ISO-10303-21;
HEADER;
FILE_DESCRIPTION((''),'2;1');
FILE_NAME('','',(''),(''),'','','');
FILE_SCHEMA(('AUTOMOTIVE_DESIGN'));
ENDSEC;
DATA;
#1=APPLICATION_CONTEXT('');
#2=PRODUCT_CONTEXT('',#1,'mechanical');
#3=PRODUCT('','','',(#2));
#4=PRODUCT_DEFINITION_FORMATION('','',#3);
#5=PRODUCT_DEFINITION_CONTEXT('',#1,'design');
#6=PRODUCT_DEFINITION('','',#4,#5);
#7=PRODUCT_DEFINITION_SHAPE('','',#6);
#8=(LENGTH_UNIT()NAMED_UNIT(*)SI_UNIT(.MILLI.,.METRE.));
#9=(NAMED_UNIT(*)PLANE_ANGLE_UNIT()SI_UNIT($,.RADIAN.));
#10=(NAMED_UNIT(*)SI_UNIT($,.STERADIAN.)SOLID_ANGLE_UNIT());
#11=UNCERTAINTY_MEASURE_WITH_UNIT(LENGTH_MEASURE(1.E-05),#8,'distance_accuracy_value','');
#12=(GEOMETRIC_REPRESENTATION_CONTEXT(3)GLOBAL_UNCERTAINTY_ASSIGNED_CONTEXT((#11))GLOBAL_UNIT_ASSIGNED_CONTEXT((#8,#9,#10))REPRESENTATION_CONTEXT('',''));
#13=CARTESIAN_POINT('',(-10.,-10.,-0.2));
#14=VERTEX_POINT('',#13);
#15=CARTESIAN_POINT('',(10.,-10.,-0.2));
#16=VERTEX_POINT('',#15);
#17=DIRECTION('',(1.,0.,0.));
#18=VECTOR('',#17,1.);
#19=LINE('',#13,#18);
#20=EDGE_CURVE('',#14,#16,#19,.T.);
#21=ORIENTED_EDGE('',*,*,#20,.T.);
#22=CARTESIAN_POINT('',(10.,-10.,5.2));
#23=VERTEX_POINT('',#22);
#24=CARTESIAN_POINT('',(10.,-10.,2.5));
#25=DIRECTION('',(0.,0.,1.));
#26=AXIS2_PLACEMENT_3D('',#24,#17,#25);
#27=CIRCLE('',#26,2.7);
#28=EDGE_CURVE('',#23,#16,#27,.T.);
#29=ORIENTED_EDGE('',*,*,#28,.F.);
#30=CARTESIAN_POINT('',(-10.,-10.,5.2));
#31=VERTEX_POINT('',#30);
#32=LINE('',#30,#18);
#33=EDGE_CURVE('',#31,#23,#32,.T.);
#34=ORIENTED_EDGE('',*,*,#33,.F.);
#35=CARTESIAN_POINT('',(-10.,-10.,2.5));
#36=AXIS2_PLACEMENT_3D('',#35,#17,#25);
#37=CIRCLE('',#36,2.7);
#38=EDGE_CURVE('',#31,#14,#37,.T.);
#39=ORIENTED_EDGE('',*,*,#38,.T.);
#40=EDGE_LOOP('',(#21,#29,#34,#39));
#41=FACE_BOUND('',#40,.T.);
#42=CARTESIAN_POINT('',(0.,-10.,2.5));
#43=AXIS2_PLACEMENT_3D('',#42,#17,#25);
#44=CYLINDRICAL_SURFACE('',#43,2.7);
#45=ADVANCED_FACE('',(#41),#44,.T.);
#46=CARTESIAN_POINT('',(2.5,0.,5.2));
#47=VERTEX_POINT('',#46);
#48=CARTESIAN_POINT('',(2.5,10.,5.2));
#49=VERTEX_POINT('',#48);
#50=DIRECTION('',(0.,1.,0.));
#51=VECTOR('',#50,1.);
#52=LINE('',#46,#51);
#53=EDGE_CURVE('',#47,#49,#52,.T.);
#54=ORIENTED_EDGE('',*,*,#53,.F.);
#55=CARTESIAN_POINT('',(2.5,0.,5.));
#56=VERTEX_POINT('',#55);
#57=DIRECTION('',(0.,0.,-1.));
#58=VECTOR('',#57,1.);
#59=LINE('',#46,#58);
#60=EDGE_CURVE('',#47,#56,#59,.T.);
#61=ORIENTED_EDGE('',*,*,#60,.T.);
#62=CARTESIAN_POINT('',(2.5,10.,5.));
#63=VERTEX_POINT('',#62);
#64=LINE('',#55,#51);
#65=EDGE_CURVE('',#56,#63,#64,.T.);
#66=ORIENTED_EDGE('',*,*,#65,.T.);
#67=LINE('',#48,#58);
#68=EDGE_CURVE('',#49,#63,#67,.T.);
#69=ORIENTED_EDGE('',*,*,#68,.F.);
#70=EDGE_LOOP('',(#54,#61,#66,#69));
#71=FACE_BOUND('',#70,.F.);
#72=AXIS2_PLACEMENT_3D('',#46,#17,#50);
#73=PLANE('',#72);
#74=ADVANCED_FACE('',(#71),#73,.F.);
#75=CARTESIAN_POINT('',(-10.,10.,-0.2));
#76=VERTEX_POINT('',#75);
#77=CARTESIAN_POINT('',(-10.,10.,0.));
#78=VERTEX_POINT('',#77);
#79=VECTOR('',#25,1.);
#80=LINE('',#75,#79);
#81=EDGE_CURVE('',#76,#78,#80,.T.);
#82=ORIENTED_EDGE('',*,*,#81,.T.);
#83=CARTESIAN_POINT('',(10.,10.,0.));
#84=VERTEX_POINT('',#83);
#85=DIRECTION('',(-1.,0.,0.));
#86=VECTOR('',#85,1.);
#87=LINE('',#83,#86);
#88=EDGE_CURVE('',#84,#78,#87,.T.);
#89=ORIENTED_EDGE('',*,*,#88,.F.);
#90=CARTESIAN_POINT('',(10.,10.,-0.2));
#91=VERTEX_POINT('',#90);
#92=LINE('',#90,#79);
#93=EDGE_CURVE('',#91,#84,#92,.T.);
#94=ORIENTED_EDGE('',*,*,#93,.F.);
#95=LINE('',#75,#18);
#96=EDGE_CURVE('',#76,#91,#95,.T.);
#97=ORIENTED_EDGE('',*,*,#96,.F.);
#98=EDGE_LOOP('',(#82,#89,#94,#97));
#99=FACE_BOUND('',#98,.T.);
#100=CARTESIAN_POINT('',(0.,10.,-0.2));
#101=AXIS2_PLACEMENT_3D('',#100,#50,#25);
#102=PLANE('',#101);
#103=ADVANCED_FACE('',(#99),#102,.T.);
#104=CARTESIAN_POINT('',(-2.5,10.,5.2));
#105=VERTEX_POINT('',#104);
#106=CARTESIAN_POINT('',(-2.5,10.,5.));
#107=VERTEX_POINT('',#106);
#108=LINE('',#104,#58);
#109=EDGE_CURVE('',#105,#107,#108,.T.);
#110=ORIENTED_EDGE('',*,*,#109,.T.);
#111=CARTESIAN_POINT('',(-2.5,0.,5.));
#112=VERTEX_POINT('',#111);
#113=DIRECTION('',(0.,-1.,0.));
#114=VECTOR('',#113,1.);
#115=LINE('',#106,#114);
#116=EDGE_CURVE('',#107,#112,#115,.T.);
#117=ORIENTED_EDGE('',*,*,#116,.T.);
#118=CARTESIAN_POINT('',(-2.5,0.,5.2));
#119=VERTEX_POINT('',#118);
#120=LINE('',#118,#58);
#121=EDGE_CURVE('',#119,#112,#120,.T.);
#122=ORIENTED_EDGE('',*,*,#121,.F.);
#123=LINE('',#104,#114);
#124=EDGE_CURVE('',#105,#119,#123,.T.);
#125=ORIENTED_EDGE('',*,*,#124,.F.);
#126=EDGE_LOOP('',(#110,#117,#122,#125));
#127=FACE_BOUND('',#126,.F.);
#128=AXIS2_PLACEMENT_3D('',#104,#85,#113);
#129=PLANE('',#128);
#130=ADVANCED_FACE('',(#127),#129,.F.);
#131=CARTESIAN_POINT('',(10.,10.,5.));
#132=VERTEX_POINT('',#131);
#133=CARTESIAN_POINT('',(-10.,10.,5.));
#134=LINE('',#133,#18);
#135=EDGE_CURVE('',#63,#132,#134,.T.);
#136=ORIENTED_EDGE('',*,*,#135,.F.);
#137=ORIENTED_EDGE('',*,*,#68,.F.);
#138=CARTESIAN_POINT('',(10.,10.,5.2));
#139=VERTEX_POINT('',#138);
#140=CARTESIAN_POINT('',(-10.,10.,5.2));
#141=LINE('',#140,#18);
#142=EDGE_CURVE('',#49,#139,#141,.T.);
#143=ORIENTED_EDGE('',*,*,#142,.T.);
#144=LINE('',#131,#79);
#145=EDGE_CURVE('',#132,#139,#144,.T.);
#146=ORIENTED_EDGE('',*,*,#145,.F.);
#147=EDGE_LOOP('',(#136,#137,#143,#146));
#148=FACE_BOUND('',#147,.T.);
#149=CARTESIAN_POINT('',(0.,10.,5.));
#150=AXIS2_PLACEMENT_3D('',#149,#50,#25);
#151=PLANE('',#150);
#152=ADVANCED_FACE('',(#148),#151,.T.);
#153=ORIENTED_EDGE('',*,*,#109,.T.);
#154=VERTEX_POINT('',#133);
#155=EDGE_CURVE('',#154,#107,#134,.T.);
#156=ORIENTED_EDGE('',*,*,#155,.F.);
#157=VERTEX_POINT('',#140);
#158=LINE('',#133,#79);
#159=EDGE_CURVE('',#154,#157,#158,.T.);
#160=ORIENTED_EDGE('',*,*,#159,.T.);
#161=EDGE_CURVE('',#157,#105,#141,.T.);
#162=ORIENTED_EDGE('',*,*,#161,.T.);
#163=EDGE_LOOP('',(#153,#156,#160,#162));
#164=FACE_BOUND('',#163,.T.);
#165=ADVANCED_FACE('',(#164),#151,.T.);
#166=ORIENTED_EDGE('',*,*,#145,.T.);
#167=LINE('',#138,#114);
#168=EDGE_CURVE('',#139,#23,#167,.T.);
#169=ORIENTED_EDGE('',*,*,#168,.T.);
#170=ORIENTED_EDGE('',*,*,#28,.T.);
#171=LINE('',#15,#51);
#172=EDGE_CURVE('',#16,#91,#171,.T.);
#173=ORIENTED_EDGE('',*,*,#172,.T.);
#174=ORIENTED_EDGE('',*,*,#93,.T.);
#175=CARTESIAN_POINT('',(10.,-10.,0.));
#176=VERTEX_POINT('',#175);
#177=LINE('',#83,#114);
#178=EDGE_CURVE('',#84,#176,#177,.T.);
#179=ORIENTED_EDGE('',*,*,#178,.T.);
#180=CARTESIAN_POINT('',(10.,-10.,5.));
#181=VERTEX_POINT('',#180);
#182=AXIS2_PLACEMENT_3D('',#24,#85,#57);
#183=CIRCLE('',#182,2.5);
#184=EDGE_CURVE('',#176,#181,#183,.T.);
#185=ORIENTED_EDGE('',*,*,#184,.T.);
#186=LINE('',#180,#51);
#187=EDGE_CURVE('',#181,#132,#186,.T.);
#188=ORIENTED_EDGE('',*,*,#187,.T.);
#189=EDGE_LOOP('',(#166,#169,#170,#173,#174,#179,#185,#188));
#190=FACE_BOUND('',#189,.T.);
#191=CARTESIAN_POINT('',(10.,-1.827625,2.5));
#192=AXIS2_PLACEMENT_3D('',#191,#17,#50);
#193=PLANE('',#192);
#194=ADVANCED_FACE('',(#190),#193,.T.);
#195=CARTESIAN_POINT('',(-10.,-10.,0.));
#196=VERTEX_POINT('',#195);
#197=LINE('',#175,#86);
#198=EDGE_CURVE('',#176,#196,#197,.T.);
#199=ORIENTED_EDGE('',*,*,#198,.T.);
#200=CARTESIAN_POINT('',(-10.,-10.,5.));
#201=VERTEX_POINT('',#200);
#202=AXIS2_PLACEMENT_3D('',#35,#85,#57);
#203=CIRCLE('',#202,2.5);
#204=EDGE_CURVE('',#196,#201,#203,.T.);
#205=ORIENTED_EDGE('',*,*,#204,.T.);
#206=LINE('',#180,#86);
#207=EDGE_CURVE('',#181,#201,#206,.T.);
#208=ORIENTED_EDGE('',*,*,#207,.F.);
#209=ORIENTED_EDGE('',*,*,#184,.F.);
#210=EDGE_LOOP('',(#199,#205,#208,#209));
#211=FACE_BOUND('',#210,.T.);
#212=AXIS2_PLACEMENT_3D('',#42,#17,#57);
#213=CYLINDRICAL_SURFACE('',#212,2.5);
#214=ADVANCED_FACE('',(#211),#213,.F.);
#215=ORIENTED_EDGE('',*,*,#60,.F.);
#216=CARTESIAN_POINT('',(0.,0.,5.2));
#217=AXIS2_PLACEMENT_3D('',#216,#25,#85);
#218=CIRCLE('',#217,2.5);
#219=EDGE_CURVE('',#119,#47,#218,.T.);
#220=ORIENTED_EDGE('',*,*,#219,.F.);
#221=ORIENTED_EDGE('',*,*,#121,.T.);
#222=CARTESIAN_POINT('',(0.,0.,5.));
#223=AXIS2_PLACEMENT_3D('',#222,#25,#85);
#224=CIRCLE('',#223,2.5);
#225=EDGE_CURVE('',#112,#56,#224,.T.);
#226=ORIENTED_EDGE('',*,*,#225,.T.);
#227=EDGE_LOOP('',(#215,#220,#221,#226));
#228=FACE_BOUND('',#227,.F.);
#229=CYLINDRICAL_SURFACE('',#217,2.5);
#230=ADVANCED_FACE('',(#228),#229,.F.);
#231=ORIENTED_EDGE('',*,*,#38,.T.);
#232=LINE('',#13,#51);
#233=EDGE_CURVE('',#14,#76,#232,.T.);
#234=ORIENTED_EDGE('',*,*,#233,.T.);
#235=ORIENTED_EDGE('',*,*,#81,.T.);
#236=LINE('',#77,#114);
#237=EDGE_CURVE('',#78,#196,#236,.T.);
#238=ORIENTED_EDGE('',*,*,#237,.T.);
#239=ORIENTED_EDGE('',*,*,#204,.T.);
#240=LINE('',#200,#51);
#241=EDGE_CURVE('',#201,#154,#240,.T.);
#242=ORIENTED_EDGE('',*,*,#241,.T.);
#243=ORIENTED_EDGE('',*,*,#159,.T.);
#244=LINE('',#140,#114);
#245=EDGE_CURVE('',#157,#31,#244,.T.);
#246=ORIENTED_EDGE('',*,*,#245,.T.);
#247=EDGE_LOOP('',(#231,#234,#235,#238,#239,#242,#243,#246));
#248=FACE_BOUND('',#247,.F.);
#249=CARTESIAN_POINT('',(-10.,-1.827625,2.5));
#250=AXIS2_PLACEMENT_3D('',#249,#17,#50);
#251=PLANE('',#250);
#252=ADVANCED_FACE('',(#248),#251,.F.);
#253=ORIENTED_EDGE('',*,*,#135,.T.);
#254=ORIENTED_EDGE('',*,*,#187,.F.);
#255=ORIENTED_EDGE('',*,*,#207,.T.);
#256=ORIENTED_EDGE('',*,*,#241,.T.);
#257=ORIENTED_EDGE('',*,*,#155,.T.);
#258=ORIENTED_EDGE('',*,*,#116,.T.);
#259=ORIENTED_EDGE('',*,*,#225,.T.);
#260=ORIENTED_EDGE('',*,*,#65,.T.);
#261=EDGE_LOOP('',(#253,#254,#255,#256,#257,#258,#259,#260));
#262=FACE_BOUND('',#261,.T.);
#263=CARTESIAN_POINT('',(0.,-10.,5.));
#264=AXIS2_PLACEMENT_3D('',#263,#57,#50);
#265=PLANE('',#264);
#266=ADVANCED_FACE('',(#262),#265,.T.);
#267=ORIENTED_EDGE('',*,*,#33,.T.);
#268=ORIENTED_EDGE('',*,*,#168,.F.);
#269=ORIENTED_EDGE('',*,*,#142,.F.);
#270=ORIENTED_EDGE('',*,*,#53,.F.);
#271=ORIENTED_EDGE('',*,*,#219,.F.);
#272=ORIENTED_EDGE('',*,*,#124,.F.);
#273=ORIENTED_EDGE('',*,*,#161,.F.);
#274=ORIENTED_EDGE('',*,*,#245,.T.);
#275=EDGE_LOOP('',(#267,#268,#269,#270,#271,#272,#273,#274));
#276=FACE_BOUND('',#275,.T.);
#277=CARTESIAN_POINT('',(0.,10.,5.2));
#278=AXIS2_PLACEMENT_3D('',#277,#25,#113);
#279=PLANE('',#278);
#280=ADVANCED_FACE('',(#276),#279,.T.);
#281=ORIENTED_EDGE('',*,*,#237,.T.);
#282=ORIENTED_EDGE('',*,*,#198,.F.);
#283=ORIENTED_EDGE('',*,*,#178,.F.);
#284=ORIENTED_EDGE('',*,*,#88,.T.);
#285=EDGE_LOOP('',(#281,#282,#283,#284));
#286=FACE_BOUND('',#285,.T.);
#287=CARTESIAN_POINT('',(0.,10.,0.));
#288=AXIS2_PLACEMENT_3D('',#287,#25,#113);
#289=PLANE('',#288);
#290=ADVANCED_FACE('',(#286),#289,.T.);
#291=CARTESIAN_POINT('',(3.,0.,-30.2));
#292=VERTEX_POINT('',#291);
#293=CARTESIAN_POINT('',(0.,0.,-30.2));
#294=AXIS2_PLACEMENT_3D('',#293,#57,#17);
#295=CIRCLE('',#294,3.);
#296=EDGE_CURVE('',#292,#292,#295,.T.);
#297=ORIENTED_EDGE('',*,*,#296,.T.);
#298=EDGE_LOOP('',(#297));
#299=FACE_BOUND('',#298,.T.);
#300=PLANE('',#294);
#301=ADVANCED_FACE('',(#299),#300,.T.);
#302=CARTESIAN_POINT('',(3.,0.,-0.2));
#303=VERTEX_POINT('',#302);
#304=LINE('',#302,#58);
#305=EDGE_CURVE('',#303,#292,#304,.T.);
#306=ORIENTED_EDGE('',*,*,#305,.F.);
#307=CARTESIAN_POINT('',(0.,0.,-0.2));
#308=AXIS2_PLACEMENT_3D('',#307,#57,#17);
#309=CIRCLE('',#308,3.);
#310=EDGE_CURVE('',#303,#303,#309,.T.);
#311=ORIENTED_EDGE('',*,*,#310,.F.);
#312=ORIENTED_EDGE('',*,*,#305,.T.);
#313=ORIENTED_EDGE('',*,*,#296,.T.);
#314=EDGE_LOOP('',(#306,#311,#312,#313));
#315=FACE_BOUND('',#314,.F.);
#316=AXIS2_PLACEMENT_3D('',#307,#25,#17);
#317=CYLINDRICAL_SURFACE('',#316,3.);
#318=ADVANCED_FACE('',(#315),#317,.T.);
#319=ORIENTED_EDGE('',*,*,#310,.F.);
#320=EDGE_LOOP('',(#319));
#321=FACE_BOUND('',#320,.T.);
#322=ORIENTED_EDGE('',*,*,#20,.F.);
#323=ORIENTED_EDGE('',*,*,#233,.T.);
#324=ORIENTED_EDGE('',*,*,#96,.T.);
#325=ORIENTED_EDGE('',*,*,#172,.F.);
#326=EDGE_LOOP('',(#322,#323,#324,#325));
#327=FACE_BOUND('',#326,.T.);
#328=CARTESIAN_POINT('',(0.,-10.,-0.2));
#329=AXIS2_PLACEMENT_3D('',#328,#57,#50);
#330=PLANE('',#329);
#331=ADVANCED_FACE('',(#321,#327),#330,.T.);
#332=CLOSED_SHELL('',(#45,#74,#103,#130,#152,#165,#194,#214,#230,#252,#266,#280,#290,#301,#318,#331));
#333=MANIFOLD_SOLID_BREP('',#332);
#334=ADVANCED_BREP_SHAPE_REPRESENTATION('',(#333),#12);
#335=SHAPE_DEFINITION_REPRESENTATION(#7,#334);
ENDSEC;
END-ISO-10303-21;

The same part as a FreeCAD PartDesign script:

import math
import FreeCAD as App
import Part
import Sketcher
Q = App.Units.Quantity

doc = App.newDocument("Part")
body = doc.addObject("PartDesign::Body", "Body")

# Sketch on YZ plane
sketch1 = body.newObject("Sketcher::SketchObject", "Sketch")
sketch1.AttachmentSupport = (doc.getObject("YZ_Plane"), [""])
sketch1.MapMode = "FlatFace"
sketch1.addGeometry([
    Part.LineSegment(App.Vector(-10, 5, 0), App.Vector(10, 5, 0)),  # 0
    Part.LineSegment(App.Vector(10, 5, 0), App.Vector(10, 5.2, 0)),  # 1
    Part.LineSegment(App.Vector(10, 5.2, 0), App.Vector(-10, 5.2, 0)),  # 2
    Part.ArcOfCircle(Part.Circle(App.Vector(-10, 2.5, 0), App.Vector(0, 0, 1), 2.7), math.radians(90), math.radians(270)),  # 3
    Part.LineSegment(App.Vector(-10, -0.2, 0), App.Vector(10, -0.2, 0)),  # 4
    Part.LineSegment(App.Vector(10, -0.2, 0), App.Vector(10, 0, 0)),  # 5
    Part.LineSegment(App.Vector(10, 0, 0), App.Vector(-10, 0, 0)),  # 6
    Part.ArcOfCircle(Part.Circle(App.Vector(-10, 2.5, 0), App.Vector(0, 0, 1), 2.5), math.radians(90), math.radians(270)),  # 7
], False)
sketch1.addConstraint([
    Sketcher.Constraint("Coincident", 0, 2, 1, 1),
    Sketcher.Constraint("Coincident", 1, 2, 2, 1),
    Sketcher.Constraint("Tangent", 2, 2, 3, 1),
    Sketcher.Constraint("Tangent", 3, 2, 4, 1),
    Sketcher.Constraint("Coincident", 4, 2, 5, 1),
    Sketcher.Constraint("Coincident", 5, 2, 6, 1),
    Sketcher.Constraint("Tangent", 6, 2, 7, 2),
    Sketcher.Constraint("Tangent", 7, 1, 0, 1),
    Sketcher.Constraint("Horizontal", 0),
    Sketcher.Constraint("Vertical", 1),
    Sketcher.Constraint("Horizontal", 2),
    Sketcher.Constraint("Horizontal", 4),
    Sketcher.Constraint("Vertical", 5),
    Sketcher.Constraint("Horizontal", 6),
    Sketcher.Constraint("Coincident", 7, 3, 3, 3),
    Sketcher.Constraint("Symmetric", 5, 2, 6, 2, -1, 1),
    Sketcher.Constraint("Vertical", 1, 2, 4, 2),
    Sketcher.Constraint("Radius", 3, Q("2.7 mm")),
    Sketcher.Constraint("Radius", 7, Q("2.5 mm")),
    Sketcher.Constraint("DistanceX", 0, 1, 0, 2, Q("20 mm")),
])
pad1 = body.newObject("PartDesign::Pad", "Pad")
pad1.Profile = sketch1
pad1.Length = 20
pad1.Midplane = True

# Sketch on XY plane
sketch2 = body.newObject("Sketcher::SketchObject", "Sketch001")
sketch2.AttachmentSupport = (doc.getObject("XY_Plane"), [""])
sketch2.MapMode = "FlatFace"
sketch2.AttachmentOffset = App.Placement(App.Vector(0, 0, 5.2), App.Rotation())
sketch2.addGeometry([
    Part.LineSegment(App.Vector(-2.5, 10, 0), App.Vector(-2.5, 0, 0)),
    Part.ArcOfCircle(Part.Circle(App.Vector(0, 0, 0), App.Vector(0, 0, 1), 2.5), math.radians(180), math.radians(360)),
    Part.LineSegment(App.Vector(2.5, 0, 0), App.Vector(2.5, 10, 0)),
    Part.LineSegment(App.Vector(2.5, 10, 0), App.Vector(-2.5, 10, 0)),
], False)
sketch2.addConstraint([
    Sketcher.Constraint("Tangent", 0, 2, 1, 1),
    Sketcher.Constraint("Tangent", 1, 2, 2, 1),
    Sketcher.Constraint("Coincident", 2, 2, 3, 1),
    Sketcher.Constraint("Coincident", 3, 2, 0, 1),
    Sketcher.Constraint("Vertical", 0),
    Sketcher.Constraint("Vertical", 2),
    Sketcher.Constraint("Horizontal", 3),
    Sketcher.Constraint("Coincident", 1, 3, -1, 1),
    Sketcher.Constraint("Radius", 1, Q("2.5 mm")),
    Sketcher.Constraint("DistanceY", 0, 2, 0, 1, Q("10 mm")),
])
pocket1 = body.newObject("PartDesign::Pocket", "Pocket")
pocket1.Profile = sketch2
pocket1.Length = 0.2

# Sketch on XY plane
sketch3 = body.newObject("Sketcher::SketchObject", "Sketch002")
sketch3.AttachmentSupport = (doc.getObject("XY_Plane"), [""])
sketch3.MapMode = "FlatFace"
sketch3.AttachmentOffset = App.Placement(App.Vector(0, 0, -0.2), App.Rotation())
sketch3.addGeometry(Part.Circle(App.Vector(0, 0, 0), App.Vector(0, 0, 1), 3), False)
sketch3.addConstraint([
    Sketcher.Constraint("Coincident", 0, 3, -1, 1),
    Sketcher.Constraint("Diameter", 0, Q("6 mm")),
])
pad2 = body.newObject("PartDesign::Pad", "Pad001")
pad2.Profile = sketch3
pad2.Length = 30
pad2.Reversed = True

doc.recompute()
